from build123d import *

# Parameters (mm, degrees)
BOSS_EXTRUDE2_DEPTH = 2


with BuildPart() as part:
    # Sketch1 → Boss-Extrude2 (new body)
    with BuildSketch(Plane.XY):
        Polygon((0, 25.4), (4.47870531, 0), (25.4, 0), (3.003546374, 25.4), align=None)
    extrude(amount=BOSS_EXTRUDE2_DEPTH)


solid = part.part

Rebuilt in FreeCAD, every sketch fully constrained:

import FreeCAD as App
import Part
import Sketcher

V = App.Vector
Q = App.Units.Quantity

doc = App.newDocument("Part")
body = doc.addObject("PartDesign::Body", "Body")

# Sketch on XY plane
sketch1 = body.newObject("Sketcher::SketchObject", "Sketch")
sketch1.AttachmentSupport = (doc.getObject("XY_Plane"), [""])
sketch1.MapMode = "FlatFace"
sketch1.addGeometry(Part.LineSegment(V(0, 25.4, 0), V(4.478705, 0, 0)), False)
sketch1.addGeometry(Part.LineSegment(V(4.478705, 0, 0), V(25.4, 0, 0)), False)
sketch1.addGeometry(Part.LineSegment(V(25.4, 0, 0), V(3.003546, 25.4, 0)), False)
sketch1.addGeometry(Part.LineSegment(V(3.003546, 25.4, 0), V(0, 25.4, 0)), False)
sketch1.addConstraint(Sketcher.Constraint("Coincident", 0, 2, 1, 1))
sketch1.addConstraint(Sketcher.Constraint("Coincident", 1, 2, 2, 1))
sketch1.addConstraint(Sketcher.Constraint("Coincident", 2, 2, 3, 1))
sketch1.addConstraint(Sketcher.Constraint("Coincident", 3, 2, 0, 1))
sketch1.addConstraint(Sketcher.Constraint("Horizontal", 1))
sketch1.addConstraint(Sketcher.Constraint("Horizontal", 3))
sketch1.addConstraint(Sketcher.Constraint("PointOnObject", 0, 2, -1))
sketch1.addConstraint(Sketcher.Constraint("PointOnObject", 3, 2, -2))
sketch1.addConstraint(Sketcher.Constraint("Angle", 0, Q("-80 deg")))
sketch1.addConstraint(Sketcher.Constraint("DistanceX", -1, 1, 1, 2, 25.4))
sketch1.addConstraint(Sketcher.Constraint("DistanceY", -1, 1, 2, 2, 25.4))
sketch1.addConstraint(Sketcher.Constraint("Distance", 2, 33.863862))
pad1 = body.newObject("PartDesign::Pad", "Pad")
pad1.Profile = sketch1
pad1.Length = 2

doc.recompute()
